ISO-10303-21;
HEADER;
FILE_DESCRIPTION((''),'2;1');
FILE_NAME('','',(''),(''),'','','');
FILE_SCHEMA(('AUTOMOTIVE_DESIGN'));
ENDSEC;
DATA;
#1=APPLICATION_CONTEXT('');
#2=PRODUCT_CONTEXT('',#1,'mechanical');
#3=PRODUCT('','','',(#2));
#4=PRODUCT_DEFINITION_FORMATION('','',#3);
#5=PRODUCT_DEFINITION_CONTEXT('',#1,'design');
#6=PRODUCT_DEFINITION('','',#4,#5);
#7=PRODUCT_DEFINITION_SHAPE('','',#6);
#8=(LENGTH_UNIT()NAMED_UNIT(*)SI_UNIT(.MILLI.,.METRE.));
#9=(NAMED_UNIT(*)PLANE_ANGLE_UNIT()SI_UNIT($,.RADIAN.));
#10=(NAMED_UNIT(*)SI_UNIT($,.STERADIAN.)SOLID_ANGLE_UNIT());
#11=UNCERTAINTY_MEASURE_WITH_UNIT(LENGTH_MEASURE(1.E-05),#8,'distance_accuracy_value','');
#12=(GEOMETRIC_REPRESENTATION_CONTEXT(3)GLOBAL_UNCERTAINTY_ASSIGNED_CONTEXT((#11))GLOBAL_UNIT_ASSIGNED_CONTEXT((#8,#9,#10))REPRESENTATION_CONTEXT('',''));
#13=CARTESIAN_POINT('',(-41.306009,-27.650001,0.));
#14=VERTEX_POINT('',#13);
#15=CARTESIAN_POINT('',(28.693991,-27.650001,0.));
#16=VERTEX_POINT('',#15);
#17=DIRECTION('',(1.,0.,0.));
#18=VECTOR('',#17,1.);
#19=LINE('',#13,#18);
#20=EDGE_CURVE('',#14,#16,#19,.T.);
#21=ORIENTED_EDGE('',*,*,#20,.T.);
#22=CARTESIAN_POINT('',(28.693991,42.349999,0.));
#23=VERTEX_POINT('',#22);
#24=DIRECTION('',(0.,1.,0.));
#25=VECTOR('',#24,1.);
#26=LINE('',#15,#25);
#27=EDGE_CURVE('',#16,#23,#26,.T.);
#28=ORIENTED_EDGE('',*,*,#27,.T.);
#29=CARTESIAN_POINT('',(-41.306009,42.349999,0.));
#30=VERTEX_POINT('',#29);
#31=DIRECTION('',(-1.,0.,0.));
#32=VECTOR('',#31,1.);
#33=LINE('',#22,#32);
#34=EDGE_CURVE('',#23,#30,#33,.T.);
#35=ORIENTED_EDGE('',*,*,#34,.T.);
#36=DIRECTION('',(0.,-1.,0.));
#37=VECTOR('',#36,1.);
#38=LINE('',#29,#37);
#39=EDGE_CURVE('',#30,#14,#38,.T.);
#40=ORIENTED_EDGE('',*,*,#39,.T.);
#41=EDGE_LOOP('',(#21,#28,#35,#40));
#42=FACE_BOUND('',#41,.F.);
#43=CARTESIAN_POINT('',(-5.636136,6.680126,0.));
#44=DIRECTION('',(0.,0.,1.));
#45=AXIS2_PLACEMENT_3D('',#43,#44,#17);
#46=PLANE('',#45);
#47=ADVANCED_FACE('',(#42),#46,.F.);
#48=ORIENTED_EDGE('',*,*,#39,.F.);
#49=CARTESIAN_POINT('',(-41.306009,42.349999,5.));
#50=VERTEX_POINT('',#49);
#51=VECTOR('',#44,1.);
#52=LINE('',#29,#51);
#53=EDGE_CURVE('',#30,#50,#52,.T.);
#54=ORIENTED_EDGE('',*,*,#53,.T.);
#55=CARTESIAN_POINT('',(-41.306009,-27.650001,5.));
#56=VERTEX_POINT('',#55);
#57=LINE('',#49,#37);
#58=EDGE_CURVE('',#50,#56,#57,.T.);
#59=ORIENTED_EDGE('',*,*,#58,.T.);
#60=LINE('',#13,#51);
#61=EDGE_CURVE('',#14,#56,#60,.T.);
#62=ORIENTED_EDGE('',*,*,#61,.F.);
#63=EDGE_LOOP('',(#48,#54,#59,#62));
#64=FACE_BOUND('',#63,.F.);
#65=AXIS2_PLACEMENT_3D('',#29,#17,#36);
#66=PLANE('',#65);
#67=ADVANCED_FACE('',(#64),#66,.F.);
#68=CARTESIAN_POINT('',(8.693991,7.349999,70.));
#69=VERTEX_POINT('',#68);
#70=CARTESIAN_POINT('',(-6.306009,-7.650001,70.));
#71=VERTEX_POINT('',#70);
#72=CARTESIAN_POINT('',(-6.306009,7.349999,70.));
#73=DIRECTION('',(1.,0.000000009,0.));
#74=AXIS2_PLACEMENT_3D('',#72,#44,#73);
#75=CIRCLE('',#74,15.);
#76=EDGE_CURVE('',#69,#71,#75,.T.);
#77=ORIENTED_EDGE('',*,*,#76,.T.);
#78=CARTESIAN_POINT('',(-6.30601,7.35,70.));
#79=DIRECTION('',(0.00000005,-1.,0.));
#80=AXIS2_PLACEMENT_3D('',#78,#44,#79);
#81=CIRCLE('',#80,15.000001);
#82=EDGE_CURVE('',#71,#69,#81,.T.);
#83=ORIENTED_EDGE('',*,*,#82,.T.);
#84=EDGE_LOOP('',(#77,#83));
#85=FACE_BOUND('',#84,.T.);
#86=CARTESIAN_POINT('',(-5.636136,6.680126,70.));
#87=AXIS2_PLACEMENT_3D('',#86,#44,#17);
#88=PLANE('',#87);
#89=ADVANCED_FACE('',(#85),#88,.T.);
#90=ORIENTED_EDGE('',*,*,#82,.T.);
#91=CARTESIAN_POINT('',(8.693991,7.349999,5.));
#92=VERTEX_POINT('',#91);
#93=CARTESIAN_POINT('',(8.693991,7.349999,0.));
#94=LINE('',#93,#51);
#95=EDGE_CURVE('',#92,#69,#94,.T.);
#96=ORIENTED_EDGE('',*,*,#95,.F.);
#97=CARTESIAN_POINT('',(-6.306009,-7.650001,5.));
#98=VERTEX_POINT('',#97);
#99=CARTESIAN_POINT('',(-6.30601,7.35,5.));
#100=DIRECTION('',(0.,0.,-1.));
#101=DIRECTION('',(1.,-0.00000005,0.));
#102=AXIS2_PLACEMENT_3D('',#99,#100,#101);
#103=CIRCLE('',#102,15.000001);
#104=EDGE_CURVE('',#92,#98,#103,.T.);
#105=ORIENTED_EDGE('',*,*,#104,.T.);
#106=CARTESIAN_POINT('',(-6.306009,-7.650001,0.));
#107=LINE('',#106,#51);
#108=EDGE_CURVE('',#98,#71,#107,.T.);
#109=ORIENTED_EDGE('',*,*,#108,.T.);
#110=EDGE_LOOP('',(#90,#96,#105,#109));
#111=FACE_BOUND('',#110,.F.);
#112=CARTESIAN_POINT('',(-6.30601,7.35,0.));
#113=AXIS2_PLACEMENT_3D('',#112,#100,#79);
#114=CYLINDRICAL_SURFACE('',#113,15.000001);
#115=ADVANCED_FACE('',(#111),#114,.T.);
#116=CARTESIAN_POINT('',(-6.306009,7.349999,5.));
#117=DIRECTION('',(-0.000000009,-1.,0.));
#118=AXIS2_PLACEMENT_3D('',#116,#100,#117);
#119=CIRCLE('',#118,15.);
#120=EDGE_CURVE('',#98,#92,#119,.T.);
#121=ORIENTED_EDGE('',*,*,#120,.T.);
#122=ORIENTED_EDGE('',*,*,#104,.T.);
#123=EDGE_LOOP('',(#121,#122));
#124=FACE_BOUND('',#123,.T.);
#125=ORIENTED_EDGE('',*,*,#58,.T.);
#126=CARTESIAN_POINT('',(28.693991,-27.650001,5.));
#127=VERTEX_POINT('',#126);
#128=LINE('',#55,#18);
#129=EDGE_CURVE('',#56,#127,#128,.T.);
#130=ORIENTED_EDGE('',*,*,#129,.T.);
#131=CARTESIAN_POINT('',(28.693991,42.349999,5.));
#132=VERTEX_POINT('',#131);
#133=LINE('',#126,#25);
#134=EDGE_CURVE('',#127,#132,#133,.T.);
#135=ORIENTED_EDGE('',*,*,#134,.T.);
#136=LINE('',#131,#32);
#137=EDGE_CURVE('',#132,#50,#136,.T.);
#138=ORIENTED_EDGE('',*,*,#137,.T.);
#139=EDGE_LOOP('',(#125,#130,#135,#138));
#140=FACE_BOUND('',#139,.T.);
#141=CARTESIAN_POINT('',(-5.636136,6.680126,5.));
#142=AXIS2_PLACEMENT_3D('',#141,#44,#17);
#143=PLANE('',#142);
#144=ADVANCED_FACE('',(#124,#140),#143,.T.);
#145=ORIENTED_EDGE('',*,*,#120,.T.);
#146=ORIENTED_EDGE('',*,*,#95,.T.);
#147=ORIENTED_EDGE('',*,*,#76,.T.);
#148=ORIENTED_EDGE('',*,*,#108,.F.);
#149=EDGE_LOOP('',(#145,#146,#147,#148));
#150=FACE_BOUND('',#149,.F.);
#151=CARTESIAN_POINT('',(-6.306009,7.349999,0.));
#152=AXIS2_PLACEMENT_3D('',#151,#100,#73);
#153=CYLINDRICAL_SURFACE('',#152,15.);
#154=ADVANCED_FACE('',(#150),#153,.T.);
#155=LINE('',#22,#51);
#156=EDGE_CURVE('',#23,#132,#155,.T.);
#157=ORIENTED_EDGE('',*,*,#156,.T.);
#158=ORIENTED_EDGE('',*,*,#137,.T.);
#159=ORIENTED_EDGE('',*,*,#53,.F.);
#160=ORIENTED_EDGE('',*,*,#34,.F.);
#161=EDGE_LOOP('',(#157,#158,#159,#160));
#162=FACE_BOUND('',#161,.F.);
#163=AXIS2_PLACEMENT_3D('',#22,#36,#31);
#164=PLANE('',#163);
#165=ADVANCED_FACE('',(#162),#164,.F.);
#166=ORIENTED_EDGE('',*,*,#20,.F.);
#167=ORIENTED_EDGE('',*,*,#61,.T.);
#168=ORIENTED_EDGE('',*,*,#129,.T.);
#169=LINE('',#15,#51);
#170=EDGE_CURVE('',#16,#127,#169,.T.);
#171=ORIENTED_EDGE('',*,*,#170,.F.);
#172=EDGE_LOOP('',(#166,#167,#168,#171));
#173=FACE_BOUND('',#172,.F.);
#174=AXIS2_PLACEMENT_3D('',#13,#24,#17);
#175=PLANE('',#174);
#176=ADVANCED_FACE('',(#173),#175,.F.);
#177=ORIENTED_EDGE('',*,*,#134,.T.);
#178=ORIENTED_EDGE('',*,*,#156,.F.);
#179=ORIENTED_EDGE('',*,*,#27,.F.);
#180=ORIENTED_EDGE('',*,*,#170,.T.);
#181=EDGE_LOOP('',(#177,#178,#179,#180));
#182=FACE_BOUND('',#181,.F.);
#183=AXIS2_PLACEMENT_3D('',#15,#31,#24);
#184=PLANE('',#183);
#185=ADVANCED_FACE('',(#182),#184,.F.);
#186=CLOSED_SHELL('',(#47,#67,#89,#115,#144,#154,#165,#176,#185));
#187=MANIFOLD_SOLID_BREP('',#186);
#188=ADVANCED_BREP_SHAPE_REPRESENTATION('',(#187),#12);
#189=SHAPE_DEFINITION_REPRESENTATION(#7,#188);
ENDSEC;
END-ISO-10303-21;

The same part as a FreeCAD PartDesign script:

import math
import FreeCAD as App
import Part
import Sketcher


def add_polygon(sketch, points):
    """Adds a closed chain of lines whose ends are joined by coincident constraints."""
    first, n = sketch.GeometryCount, len(points)
    for a, b in zip(points, points[1:] + points[:1]):
        sketch.addGeometry(Part.LineSegment(App.Vector(*a, 0), App.Vector(*b, 0)), False)
    for i in range(n):
        sketch.addConstraint(Sketcher.Constraint("Coincident", first + i, 2, first + (i + 1) % n, 1))

doc = App.newDocument("Part")
params = doc.addObject("Spreadsheet::Sheet", "Params")
for row, (alias, value) in enumerate([
    ("sketch1_radius", "15 mm"),
    ("sketch1_width", "70 mm"),
    ("pad1_length", "5 mm"),
    ("sketch2_radius", "15 mm"),
    ("pad2_length", "70 mm"),
], start=1):
    params.set(f"A{row}", alias)
    params.set(f"B{row}", "=" + value)
    params.setAlias(f"B{row}", alias)

body = doc.addObject("PartDesign::Body", "Body")

sketch1 = body.newObject("Sketcher::SketchObject", "Sketch")
sketch1.AttachmentSupport = (doc.getObject("XY_Plane"), [""])
sketch1.MapMode = "FlatFace"
add_polygon(sketch1, [(-41, 42), (-41, -28), (29, -28), (29, 42)])
sketch1.addGeometry(Part.ArcOfCircle(Part.Circle(App.Vector(-6, 7, 0), App.Vector(0, 0, 1), 15), math.radians(0), math.radians(270)), False)
sketch1.addGeometry(Part.ArcOfCircle(Part.Circle(App.Vector(-6, 7, 0), App.Vector(0, 0, 1), 15), math.radians(-90), math.radians(0)), False)
sketch1.addConstraint([
    Sketcher.Constraint("Tangent", 4, 1, 5, 2),
    Sketcher.Constraint("Coincident", 5, 1, 4, 2),
    Sketcher.Constraint("Vertical", 0),
    Sketcher.Constraint("Horizontal", 1),
    Sketcher.Constraint("Vertical", 2),
    Sketcher.Constraint("Horizontal", 3),
    Sketcher.Constraint("Horizontal", 5, 3, 4, 1),
    Sketcher.Constraint("Vertical", 4, 3, 5, 1),
    Sketcher.Constraint("Equal", 3, 0),
    Sketcher.Constraint("Radius", 4, 15.0),
    Sketcher.Constraint("DistanceX", 1, 1, 1, 2, 70.0),
    Sketcher.Constraint("DistanceX", 0, 2, 4, 3, 35.0),
    Sketcher.Constraint("DistanceY", 0, 2, 4, 3, 35.0),
    Sketcher.Constraint("DistanceY", -1, 1, 4, 3, 7.349999),
    Sketcher.Constraint("DistanceX", 4, 3, -1, 1, 6.306009),
])
sketch1.setExpression("Constraints[13]", "Params.sketch1_radius")
sketch1.setExpression("Constraints[14]", "Params.sketch1_width")
pad1 = body.newObject("PartDesign::Pad", "Pad")
pad1.Profile = sketch1
pad1.setExpression("Length", "Params.pad1_length")

sketch2 = body.newObject("Sketcher::SketchObject", "Sketch001")
sketch2.AttachmentSupport = (doc.getObject("XY_Plane"), [""])
sketch2.MapMode = "FlatFace"
sketch2.addGeometry([
    Part.ArcOfCircle(Part.Circle(App.Vector(-6, 7, 0), App.Vector(0, 0, 1), 15), math.radians(0), math.radians(270)),
    Part.ArcOfCircle(Part.Circle(App.Vector(-6, 7, 0), App.Vector(0, 0, 1), 15), math.radians(-90), math.radians(0)),
], False)
sketch2.addConstraint([
    Sketcher.Constraint("Tangent", 0, 1, 1, 2),
    Sketcher.Constraint("Coincident", 1, 1, 0, 2),
    Sketcher.Constraint("Horizontal", 1, 3, 0, 1),
    Sketcher.Constraint("Vertical", 0, 3, 1, 1),
    Sketcher.Constraint("Radius", 0, 15.0),
    Sketcher.Constraint("DistanceY", -1, 1, 0, 3, 7.349999),
    Sketcher.Constraint("DistanceX", 0, 3, -1, 1, 6.306009),
])
sketch2.setExpression("Constraints[4]", "Params.sketch2_radius")
pad2 = body.newObject("PartDesign::Pad", "Pad001")
pad2.Profile = sketch2
pad2.setExpression("Length", "Params.pad2_length")

doc.recompute()
